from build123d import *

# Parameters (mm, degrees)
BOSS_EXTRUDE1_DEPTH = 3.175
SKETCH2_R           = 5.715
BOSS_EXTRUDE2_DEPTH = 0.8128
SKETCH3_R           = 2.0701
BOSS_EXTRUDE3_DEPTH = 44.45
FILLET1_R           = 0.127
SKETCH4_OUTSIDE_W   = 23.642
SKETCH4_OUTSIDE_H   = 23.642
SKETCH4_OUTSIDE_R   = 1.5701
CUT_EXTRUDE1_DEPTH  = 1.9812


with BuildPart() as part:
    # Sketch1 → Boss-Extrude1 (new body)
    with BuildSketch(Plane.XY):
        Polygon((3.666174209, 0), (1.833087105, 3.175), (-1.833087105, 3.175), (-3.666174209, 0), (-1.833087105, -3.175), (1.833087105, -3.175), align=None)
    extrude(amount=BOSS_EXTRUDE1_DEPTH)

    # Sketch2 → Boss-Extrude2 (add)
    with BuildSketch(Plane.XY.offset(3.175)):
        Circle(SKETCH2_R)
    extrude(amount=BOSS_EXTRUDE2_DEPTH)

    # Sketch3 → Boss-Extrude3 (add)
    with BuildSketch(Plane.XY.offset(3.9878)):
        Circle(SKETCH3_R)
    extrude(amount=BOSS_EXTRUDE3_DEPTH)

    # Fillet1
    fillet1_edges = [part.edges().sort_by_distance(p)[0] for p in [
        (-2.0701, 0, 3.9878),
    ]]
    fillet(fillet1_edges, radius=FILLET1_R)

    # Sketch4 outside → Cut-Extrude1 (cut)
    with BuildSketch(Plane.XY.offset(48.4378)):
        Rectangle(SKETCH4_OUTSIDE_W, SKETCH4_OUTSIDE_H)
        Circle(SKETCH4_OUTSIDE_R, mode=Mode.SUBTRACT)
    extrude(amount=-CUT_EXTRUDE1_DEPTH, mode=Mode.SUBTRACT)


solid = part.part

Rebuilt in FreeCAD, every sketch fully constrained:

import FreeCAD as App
import Part
import Sketcher

V = App.Vector
Q = App.Units.Quantity


def edges_at(feature, points):
    """Names of the edges that pass closest to the given points."""
    edges = feature.Shape.Edges
    near = lambda p: min(range(len(edges)), key=lambda i: edges[i].distToShape(Part.Vertex(*p))[0])
    return sorted({f"Edge{near(p) + 1}" for p in points})


def add_polygon(sketch, points):
    """Adds a closed chain of lines whose ends are joined by coincident constraints."""
    first, n = sketch.GeometryCount, len(points)
    for a, b in zip(points, points[1:] + points[:1]):
        sketch.addGeometry(Part.LineSegment(App.Vector(*a, 0), App.Vector(*b, 0)), False)
    for i in range(n):
        sketch.addConstraint(Sketcher.Constraint("Coincident", first + i, 2, first + (i + 1) % n, 1))

doc = App.newDocument("Part")
body = doc.addObject("PartDesign::Body", "Body")

# Sketch on XY plane
sketch1 = doc.addObject("Sketcher::SketchObject", "Sketch")
body.addObject(sketch1)
sketch1.AttachmentSupport = (doc.XY_Plane, [""])
sketch1.MapMode = "FlatFace"
add_polygon(sketch1, [(3.7, 0), (1.8, 3.2), (-1.8, 3.2), (-3.7, 0), (-1.8, -3.2), (1.8, -3.2)])  # lines 0-5
sketch1.addConstraint([
    Sketcher.Constraint("Horizontal", 1),
    Sketcher.Constraint("Horizontal", 4),
    Sketcher.Constraint("Symmetric", 0, 2, 3, 2, -1, 1),
    Sketcher.Constraint("Symmetric", 2, 2, 5, 2, -1, 1),
    Sketcher.Constraint("PointOnObject", 2, 2, -1),
    Sketcher.Constraint("Parallel", 2, 5),
    Sketcher.Constraint("Vertical", 1, 2, 3, 2),
    Sketcher.Constraint("Angle", 0, Q("120 deg")),
    Sketcher.Constraint("DistanceY", 3, 2, 1, 2, Q("0.25 in")),
    Sketcher.Constraint("DistanceX", 1, 2, 1, 1, Q("3.666174 mm")),
])
pad1 = doc.addObject("PartDesign::Pad", "Pad")
body.addObject(pad1)
pad1.Profile = sketch1
pad1.Length = Q("0.125 in")

# Sketch on XY plane
sketch2 = doc.addObject("Sketcher::SketchObject", "Sketch001")
body.addObject(sketch2)
sketch2.AttachmentSupport = (doc.XY_Plane, [""])
sketch2.MapMode = "FlatFace"
sketch2.AttachmentOffset = App.Placement(V(0, 0, 0.125 * 25.4), App.Rotation())
sketch2.addGeometry(Part.Circle(V(0, 0, 0), V(0, 0, 1), 6), False)
sketch2.addConstraint([
    Sketcher.Constraint("Coincident", 0, 3, -1, 1),
    Sketcher.Constraint("Diameter", 0, Q("0.45 in")),
])
pad2 = doc.addObject("PartDesign::Pad", "Pad001")
body.addObject(pad2)
pad2.Profile = sketch2
pad2.Length = Q("0.032 in")

# Sketch on XY plane
sketch3 = doc.addObject("Sketcher::SketchObject", "Sketch002")
body.addObject(sketch3)
sketch3.AttachmentSupport = (doc.XY_Plane, [""])
sketch3.MapMode = "FlatFace"
sketch3.AttachmentOffset = App.Placement(V(0, 0, 0.157 * 25.4), App.Rotation())
sketch3.addGeometry(Part.Circle(V(0, 0, 0), V(0, 0, 1), 2.1), False)
sketch3.addConstraint([
    Sketcher.Constraint("Coincident", 0, 3, -1, 1),
    Sketcher.Constraint("Diameter", 0, Q("0.163 in")),
])
pad3 = doc.addObject("PartDesign::Pad", "Pad002")
body.addObject(pad3)
pad3.Profile = sketch3
pad3.Length = Q("1.75 in")
doc.recompute()

fillet = doc.addObject("PartDesign::Fillet", "Fillet")
body.addObject(fillet)
fillet.Base = (pad3, edges_at(pad3, [(-2.07, 0, 3.988)]))
fillet.Radius = Q("0.005 in")

# Sketch on XY plane
sketch4 = doc.addObject("Sketcher::SketchObject", "Sketch003")
body.addObject(sketch4)
sketch4.AttachmentSupport = (doc.XY_Plane, [""])
sketch4.MapMode = "FlatFace"
sketch4.AttachmentOffset = App.Placement(V(0, 0, 1.907 * 25.4), App.Rotation())
add_polygon(sketch4, [(-11.8, 11.8), (-11.8, -11.8), (11.8, -11.8), (11.8, 11.8)])  # lines 0-3
sketch4.addGeometry(Part.Circle(V(0, 0, 0), V(0, 0, 1), 1.6), False)  # 4
sketch4.addConstraint([
    Sketcher.Constraint("Vertical", 0),
    Sketcher.Constraint("Horizontal", 1),
    Sketcher.Constraint("Vertical", 2),
    Sketcher.Constraint("Horizontal", 3),
    Sketcher.Constraint("Coincident", 4, 3, -1, 1),
    Sketcher.Constraint("Symmetric", 0, 2, 2, 2, -1, 1),
    Sketcher.Constraint("Equal", 3, 0),
    Sketcher.Constraint("Diameter", 4, Q("3.1402 mm")),
    Sketcher.Constraint("DistanceX", 1, 1, 1, 2, Q("23.642 mm")),
])
pocket1 = doc.addObject("PartDesign::Pocket", "Pocket")
body.addObject(pocket1)
pocket1.Profile = sketch4
pocket1.Length = Q("0.078 in")

doc.recompute()
